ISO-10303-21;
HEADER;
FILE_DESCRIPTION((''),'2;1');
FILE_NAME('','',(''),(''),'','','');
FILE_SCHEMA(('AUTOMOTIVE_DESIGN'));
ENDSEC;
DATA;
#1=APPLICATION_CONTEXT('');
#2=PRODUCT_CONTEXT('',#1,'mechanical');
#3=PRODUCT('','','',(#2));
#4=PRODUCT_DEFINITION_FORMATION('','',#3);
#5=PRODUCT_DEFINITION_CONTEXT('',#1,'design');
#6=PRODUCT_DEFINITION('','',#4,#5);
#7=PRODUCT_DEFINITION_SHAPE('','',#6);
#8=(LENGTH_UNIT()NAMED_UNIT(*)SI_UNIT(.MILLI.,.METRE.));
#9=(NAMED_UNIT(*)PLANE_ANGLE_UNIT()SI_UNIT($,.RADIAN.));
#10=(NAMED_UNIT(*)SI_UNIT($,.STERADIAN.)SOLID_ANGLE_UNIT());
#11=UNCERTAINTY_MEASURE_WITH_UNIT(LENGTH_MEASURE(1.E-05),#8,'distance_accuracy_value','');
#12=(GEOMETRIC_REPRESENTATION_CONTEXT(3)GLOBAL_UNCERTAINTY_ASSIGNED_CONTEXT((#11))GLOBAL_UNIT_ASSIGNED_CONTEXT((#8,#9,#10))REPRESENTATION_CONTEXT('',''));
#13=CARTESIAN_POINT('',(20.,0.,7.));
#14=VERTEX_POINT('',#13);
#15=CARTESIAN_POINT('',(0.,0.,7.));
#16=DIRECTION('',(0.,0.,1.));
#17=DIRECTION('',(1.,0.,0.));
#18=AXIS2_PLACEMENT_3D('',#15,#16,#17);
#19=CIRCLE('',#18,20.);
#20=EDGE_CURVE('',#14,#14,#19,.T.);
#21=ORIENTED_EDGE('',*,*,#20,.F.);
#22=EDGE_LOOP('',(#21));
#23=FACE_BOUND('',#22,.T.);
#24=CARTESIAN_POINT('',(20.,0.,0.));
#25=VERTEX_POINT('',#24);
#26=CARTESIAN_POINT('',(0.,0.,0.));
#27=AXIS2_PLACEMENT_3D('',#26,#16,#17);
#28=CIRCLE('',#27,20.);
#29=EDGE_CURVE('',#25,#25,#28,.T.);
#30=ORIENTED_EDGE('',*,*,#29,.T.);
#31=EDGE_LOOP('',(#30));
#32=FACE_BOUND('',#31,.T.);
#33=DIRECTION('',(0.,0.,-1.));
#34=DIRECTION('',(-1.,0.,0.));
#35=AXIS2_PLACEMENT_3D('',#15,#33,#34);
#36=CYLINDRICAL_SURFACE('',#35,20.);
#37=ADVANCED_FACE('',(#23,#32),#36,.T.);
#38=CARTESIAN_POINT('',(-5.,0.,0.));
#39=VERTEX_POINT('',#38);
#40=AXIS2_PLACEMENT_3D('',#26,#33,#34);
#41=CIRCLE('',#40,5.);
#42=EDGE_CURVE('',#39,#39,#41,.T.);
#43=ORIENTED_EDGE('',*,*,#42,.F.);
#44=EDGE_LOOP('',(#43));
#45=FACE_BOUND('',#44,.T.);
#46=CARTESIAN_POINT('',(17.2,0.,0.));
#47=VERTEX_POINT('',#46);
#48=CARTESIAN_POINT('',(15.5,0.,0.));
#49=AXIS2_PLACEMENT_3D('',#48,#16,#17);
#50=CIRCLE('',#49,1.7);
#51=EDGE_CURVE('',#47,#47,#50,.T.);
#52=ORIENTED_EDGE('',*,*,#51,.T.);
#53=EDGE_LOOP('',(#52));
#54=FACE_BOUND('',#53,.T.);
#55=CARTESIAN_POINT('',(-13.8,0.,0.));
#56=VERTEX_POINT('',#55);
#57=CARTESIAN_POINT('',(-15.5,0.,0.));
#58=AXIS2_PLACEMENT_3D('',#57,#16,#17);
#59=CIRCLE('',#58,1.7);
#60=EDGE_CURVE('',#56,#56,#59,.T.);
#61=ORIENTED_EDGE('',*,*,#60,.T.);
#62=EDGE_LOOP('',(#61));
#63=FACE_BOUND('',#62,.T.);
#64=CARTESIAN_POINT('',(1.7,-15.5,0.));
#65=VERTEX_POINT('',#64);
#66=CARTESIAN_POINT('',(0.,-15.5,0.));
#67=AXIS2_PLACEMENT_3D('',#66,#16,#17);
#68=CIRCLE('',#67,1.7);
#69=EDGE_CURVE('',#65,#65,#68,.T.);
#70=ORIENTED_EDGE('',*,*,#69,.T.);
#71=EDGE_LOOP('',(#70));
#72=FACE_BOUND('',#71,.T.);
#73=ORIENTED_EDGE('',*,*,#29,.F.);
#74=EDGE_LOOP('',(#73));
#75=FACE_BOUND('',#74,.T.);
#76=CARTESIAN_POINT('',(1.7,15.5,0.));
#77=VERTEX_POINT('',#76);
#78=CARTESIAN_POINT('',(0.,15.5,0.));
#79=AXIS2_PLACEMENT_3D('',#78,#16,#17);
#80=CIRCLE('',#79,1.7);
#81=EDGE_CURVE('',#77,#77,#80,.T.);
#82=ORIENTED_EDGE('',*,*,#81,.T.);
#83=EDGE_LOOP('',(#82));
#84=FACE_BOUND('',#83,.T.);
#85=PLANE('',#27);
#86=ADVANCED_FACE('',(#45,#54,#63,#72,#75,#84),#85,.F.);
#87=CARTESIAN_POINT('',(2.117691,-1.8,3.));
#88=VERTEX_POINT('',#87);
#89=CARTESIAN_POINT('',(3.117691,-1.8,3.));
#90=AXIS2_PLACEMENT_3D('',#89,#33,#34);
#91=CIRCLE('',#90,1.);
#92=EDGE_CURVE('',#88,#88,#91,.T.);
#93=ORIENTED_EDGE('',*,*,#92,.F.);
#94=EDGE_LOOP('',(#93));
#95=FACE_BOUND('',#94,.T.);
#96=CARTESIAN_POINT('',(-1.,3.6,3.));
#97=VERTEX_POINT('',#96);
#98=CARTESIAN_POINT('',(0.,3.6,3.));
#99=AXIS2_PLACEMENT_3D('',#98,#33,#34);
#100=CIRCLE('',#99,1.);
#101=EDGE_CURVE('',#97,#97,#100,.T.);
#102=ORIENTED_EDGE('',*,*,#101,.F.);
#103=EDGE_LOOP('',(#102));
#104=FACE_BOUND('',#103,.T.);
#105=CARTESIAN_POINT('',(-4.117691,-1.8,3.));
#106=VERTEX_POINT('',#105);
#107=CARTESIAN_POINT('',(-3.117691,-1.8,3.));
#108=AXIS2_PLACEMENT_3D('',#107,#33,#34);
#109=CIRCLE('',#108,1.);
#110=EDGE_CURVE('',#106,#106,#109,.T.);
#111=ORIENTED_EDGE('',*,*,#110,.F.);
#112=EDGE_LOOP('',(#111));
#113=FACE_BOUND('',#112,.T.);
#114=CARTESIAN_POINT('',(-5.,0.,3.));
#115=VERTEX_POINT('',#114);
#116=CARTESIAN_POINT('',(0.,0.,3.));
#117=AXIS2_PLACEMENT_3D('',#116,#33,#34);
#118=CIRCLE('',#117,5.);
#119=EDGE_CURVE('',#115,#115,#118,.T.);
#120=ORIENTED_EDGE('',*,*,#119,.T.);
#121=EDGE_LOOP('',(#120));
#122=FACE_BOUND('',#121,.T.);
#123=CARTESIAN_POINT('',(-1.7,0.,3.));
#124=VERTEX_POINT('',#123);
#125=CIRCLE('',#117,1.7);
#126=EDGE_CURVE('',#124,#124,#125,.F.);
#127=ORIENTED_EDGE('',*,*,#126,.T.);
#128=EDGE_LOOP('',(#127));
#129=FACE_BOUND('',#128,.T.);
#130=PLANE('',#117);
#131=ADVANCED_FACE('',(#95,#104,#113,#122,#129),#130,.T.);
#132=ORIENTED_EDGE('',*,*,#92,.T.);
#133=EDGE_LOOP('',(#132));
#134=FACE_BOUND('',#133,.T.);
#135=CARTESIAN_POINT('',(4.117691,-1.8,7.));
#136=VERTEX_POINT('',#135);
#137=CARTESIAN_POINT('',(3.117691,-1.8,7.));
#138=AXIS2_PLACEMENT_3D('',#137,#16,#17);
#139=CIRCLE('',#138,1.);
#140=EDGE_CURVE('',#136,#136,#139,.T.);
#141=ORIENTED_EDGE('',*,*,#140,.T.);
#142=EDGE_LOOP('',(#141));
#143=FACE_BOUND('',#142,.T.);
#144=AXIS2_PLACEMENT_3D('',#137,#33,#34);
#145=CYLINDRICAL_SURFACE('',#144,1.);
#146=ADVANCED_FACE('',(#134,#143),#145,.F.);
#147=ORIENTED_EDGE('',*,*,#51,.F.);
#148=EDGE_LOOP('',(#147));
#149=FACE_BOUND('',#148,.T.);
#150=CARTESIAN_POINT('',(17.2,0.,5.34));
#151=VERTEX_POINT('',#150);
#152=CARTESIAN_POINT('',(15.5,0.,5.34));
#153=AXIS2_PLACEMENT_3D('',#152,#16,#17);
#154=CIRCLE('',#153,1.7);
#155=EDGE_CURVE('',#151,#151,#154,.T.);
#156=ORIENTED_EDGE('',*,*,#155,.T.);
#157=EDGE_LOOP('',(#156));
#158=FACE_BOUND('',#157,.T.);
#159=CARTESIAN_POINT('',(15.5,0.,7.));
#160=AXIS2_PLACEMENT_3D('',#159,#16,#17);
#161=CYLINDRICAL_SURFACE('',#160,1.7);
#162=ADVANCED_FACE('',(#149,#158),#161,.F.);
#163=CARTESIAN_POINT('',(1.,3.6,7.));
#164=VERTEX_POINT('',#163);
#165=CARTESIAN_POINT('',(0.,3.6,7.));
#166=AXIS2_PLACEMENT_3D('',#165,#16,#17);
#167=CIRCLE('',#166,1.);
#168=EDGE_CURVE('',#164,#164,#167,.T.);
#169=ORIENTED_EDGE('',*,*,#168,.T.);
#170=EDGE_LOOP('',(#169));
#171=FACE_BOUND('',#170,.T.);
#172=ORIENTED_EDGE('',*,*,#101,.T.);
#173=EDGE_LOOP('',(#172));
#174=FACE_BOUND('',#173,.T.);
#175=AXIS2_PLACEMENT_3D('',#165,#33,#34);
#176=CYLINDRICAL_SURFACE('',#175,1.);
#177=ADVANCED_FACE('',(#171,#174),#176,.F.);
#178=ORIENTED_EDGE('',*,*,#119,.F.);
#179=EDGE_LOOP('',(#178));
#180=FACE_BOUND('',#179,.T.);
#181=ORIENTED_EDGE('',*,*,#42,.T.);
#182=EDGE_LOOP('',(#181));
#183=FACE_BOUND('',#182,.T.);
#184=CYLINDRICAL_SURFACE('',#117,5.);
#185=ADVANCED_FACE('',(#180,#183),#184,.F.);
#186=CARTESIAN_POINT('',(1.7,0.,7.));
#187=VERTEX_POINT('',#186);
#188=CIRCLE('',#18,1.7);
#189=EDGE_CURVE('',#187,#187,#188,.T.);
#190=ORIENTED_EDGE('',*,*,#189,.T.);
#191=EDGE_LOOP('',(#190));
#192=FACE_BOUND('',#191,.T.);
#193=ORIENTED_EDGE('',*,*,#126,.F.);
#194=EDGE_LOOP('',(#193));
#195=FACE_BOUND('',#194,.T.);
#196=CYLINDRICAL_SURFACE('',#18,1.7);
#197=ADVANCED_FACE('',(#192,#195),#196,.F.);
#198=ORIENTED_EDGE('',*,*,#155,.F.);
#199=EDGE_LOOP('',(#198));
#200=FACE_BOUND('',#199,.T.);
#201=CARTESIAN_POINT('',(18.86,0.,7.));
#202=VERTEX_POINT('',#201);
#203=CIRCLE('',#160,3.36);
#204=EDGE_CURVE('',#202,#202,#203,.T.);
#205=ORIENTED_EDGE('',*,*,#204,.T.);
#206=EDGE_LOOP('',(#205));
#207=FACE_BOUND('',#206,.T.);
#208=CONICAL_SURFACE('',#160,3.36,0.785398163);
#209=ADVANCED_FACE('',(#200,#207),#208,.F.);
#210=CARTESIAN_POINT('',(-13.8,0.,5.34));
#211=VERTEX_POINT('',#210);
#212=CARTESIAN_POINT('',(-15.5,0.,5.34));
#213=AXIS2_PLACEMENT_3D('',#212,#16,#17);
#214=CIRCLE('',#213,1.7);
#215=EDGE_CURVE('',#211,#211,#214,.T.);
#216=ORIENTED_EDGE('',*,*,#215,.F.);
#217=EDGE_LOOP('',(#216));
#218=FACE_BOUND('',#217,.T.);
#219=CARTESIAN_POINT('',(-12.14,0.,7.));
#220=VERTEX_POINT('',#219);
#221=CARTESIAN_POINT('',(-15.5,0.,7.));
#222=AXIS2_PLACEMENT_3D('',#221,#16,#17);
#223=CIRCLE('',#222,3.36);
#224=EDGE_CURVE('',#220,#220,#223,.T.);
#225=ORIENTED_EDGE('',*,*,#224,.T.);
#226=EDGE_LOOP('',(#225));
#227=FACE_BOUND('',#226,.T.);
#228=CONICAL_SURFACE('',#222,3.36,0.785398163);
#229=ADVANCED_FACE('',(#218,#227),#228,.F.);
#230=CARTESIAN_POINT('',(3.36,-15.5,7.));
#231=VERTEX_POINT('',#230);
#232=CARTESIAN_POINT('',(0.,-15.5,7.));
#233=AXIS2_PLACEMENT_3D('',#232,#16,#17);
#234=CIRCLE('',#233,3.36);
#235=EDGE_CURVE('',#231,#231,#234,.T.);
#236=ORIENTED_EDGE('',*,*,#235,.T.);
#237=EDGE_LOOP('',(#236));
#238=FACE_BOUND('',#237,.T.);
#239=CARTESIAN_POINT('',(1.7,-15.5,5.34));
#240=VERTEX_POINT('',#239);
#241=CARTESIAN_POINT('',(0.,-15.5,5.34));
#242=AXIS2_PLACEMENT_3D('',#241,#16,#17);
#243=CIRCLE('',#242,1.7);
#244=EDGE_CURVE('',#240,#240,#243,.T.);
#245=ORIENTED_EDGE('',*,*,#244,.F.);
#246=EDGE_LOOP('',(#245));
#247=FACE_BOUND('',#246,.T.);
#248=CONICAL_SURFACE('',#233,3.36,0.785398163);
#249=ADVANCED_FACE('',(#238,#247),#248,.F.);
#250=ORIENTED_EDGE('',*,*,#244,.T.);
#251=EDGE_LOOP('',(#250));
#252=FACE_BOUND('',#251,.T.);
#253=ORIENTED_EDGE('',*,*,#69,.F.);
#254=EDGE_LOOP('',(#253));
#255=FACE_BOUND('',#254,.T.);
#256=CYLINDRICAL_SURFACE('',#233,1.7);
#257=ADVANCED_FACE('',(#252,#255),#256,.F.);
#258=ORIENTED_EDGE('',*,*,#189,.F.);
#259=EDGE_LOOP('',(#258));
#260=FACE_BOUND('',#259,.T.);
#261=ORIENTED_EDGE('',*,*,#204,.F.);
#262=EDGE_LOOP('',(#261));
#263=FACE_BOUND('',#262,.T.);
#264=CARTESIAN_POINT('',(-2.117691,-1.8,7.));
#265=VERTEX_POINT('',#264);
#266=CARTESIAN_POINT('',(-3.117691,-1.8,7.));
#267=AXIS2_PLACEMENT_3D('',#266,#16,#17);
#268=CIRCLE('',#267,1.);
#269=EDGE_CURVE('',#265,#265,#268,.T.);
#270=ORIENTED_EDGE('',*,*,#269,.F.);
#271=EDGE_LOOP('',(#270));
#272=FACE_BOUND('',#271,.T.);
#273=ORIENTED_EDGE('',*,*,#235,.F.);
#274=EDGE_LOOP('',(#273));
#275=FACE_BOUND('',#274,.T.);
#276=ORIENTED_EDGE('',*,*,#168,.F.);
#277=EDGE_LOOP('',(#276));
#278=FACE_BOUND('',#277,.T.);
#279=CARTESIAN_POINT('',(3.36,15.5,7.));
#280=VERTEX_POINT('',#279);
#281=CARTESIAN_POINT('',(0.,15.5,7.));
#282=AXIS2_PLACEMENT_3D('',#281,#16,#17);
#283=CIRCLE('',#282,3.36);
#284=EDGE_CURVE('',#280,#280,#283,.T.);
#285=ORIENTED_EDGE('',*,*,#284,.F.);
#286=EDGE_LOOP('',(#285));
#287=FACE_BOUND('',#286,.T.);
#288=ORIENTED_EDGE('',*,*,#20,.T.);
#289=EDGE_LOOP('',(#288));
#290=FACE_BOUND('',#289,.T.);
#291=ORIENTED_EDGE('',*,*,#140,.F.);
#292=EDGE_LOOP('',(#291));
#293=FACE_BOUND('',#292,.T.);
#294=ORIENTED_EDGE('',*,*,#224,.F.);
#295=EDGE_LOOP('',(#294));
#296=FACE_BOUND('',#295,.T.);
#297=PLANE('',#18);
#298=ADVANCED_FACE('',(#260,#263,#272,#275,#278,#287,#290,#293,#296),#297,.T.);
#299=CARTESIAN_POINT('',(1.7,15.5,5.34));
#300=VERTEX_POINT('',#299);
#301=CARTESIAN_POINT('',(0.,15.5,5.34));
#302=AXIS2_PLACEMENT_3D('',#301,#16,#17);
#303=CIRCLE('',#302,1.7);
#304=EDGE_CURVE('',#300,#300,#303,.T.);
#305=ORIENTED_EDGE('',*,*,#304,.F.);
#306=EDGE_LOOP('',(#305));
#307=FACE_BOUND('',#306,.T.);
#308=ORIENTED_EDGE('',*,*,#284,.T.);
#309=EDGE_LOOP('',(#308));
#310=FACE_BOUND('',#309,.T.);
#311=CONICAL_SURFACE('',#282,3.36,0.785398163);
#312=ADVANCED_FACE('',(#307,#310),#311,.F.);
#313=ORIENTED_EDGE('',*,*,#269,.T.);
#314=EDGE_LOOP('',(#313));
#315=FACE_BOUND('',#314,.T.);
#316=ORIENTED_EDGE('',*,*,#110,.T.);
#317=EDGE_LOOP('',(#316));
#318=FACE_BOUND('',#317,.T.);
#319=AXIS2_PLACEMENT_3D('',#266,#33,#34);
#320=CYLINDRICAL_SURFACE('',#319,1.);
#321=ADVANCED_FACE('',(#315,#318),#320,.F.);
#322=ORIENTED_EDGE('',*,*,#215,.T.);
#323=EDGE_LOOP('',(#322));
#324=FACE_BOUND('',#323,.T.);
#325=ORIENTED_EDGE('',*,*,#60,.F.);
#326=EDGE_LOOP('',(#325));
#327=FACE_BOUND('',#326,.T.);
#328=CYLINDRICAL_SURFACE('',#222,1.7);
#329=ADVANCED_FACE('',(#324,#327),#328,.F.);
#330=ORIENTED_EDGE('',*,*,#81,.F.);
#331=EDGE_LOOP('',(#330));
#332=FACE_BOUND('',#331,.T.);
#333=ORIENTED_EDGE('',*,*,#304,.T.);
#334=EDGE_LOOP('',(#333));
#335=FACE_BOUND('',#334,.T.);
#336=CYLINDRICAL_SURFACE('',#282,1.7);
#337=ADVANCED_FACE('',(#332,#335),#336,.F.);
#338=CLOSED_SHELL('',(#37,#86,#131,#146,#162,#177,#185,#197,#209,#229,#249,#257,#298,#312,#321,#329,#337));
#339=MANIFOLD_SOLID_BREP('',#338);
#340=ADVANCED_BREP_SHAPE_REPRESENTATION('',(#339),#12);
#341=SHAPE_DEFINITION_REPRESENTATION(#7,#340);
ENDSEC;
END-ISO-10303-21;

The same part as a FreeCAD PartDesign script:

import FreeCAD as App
import Part
import Sketcher
Q = App.Units.Quantity

doc = App.newDocument("Part")
body = doc.addObject("PartDesign::Body", "Body")

sketch1 = doc.addObject("Sketcher::SketchObject", "Sketch")
body.addObject(sketch1)
sketch1.AttachmentSupport = (doc.XY_Plane, [""])
sketch1.MapMode = "FlatFace"
sketch1.addGeometry([
    Part.Circle(App.Vector(0, 0, 0), App.Vector(0, 0, 1), 20),
    Part.Circle(App.Vector(-3.1, -1.8, 0), App.Vector(0, 0, 1), 1),
    Part.Circle(App.Vector(3.1, -1.8, 0), App.Vector(0, 0, 1), 1),
    Part.Circle(App.Vector(0, 3.6, 0), App.Vector(0, 0, 1), 1),
], False)
sketch1.addConstraint([
    Sketcher.Constraint("Coincident", 0, 3, -1, 1),
    Sketcher.Constraint("Equal", 1, 2),
    Sketcher.Constraint("Equal", 2, 3),
    Sketcher.Constraint("Symmetric", 1, 3, 2, 3, -2),
    Sketcher.Constraint("PointOnObject", 3, 3, -2),
    Sketcher.Constraint("Diameter", 0, Q("40 mm")),
    Sketcher.Constraint("Diameter", 1, Q("2 mm")),
    Sketcher.Constraint("DistanceY", 1, 3, -1, 1, Q("1.8 mm")),
    Sketcher.Constraint("DistanceY", -1, 1, 3, 3, Q("3.6 mm")),
    Sketcher.Constraint("DistanceX", 1, 3, -1, 1, Q("3.117691 mm")),
])
pad1 = doc.addObject("PartDesign::Pad", "Pad")
body.addObject(pad1)
pad1.Profile = sketch1
pad1.Length = 7

sketch2 = doc.addObject("Sketcher::SketchObject", "Sketch001")
body.addObject(sketch2)
sketch2.AttachmentSupport = (doc.XY_Plane, [""])
sketch2.MapMode = "FlatFace"
sketch2.AttachmentOffset = App.Placement(App.Vector(0, 0, 7), App.Rotation())
sketch2.addGeometry([
    Part.Circle(App.Vector(0, 15.5, 0), App.Vector(0, 0, 1), 1.7),
    Part.Circle(App.Vector(15.5, 0, 0), App.Vector(0, 0, 1), 1.7),
    Part.Circle(App.Vector(0, -15.5, 0), App.Vector(0, 0, 1), 1.7),
    Part.Circle(App.Vector(-15.5, 0, 0), App.Vector(0, 0, 1), 1.7),
], False)
sketch2.addConstraint([
    Sketcher.Constraint("Equal", 0, 1),
    Sketcher.Constraint("Equal", 1, 2),
    Sketcher.Constraint("Equal", 2, 3),
    Sketcher.Constraint("Symmetric", 0, 3, 2, 3, -1, 1),
    Sketcher.Constraint("Symmetric", 1, 3, 3, 3, -1, 1),
    Sketcher.Constraint("PointOnObject", 0, 3, -2),
    Sketcher.Constraint("PointOnObject", 1, 3, -1),
    Sketcher.Constraint("Diameter", 0, Q("3.4 mm")),
    Sketcher.Constraint("DistanceY", 2, 3, 0, 3, Q("31 mm")),
    Sketcher.Constraint("DistanceX", 3, 3, 1, 3, Q("31 mm")),
])
doc.recompute()
hole = doc.addObject("PartDesign::Hole", "Hole")
body.addObject(hole)
hole.Profile = sketch2
hole.ThreadType = "None"
hole.Diameter = 3.4
hole.DepthType = "ThroughAll"
hole.HoleCutType = "Countersink"
hole.HoleCutDiameter = 6.72
hole.HoleCutCountersinkAngle = 90

sketch3 = doc.addObject("Sketcher::SketchObject", "Sketch002")
body.addObject(sketch3)
sketch3.AttachmentSupport = (doc.XY_Plane, [""])
sketch3.MapMode = "FlatFace"
sketch3.AttachmentOffset = App.Placement(App.Vector(0, 0, 7), App.Rotation())
sketch3.addGeometry(Part.Circle(App.Vector(0, 0, 0), App.Vector(0, 0, 1), 1.7), False)
sketch3.addConstraint([
    Sketcher.Constraint("Coincident", 0, 3, -1, 1),
    Sketcher.Constraint("Diameter", 0, Q("3.4 mm")),
])
doc.recompute()
hole2 = doc.addObject("PartDesign::Hole", "Hole001")
body.addObject(hole2)
hole2.Profile = sketch3
hole2.ThreadType = "None"
hole2.Diameter = 3.4
hole2.DepthType = "ThroughAll"

sketch4 = doc.addObject("Sketcher::SketchObject", "Sketch003")
body.addObject(sketch4)
sketch4.AttachmentSupport = (doc.XY_Plane, [""])
sketch4.MapMode = "FlatFace"
sketch4.addGeometry(Part.Circle(App.Vector(0, 0, 0), App.Vector(0, 0, 1), 5), False)
sketch4.addConstraint([
    Sketcher.Constraint("Coincident", 0, 3, -1, 1),
    Sketcher.Constraint("Diameter", 0, Q("10 mm")),
])
pocket1 = doc.addObject("PartDesign::Pocket", "Pocket")
body.addObject(pocket1)
pocket1.Profile = sketch4
pocket1.Length = 3
pocket1.Reversed = True

doc.recompute()
